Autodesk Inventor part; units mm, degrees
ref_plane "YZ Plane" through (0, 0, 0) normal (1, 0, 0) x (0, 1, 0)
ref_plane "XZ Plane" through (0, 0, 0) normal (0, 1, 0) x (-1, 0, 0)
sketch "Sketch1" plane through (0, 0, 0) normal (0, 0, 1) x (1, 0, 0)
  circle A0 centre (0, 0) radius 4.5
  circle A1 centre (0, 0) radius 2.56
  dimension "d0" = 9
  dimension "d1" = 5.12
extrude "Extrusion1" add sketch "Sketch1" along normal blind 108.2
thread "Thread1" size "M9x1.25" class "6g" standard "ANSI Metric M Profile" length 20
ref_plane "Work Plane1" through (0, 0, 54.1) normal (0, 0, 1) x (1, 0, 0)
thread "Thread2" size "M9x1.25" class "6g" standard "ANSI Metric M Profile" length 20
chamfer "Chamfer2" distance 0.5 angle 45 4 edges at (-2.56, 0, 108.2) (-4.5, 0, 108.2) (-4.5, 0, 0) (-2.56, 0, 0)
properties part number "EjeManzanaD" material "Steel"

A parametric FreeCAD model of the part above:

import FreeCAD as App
import Part
import Sketcher

V = App.Vector


def edges_at(feature, points):
    """Names of the edges that pass closest to the given points."""
    edges = feature.Shape.Edges
    near = lambda p: min(range(len(edges)), key=lambda i: edges[i].distToShape(Part.Vertex(*p))[0])
    return sorted({f"Edge{near(p) + 1}" for p in points})

doc = App.newDocument("Part")
body = doc.addObject("PartDesign::Body", "Body")

# Sketch on XY plane
sketch1 = doc.addObject("Sketcher::SketchObject", "Sketch")
body.addObject(sketch1)
sketch1.AttachmentSupport = (doc.XY_Plane, [""])
sketch1.MapMode = "FlatFace"
sketch1.addGeometry([
    Part.Circle(V(0, 0, 0), V(0, 0, 1), 4.5),
    Part.Circle(V(0, 0, 0), V(0, 0, 1), 2.56),
], False)
sketch1.addConstraint([
    Sketcher.Constraint("Coincident", 0, 3, -1, 1),
    Sketcher.Constraint("Coincident", 1, 3, -1, 1),
    Sketcher.Constraint("Diameter", 0, 9.0),
    Sketcher.Constraint("Diameter", 1, 5.12),
])
pad1 = doc.addObject("PartDesign::Pad", "Pad")
body.addObject(pad1)
pad1.Profile = sketch1
pad1.Length = 108.2
doc.recompute()

chamfer = doc.addObject("PartDesign::Chamfer", "Chamfer")
body.addObject(chamfer)
chamfer.Base = (pad1, edges_at(pad1, [
    (-2.56, 0, 108.2),
    (-4.5, 0, 108.2),
    (-4.5, 0, 0),
    (-2.56, 0, 0),
]))
chamfer.Size = 0.5

doc.recompute()
